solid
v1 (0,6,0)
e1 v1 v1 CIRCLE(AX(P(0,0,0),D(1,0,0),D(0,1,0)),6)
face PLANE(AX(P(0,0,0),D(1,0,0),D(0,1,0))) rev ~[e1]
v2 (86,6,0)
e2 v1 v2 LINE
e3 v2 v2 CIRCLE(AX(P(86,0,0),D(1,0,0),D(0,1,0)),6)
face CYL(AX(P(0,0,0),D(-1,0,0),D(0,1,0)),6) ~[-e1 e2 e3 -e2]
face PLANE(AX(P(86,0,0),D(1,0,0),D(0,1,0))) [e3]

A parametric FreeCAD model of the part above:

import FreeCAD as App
import Part
import Sketcher
from FreeCAD import Vector
Q = App.Units.Quantity

doc = App.newDocument("Part")
body = doc.addObject("PartDesign::Body", "Body")

# Sketch on YZ plane
sketch1 = body.newObject("Sketcher::SketchObject", "Sketch")
sketch1.AttachmentSupport = (doc.getObject("YZ_Plane"), [""])
sketch1.MapMode = "FlatFace"
sketch1.addGeometry(Part.Circle(Vector(0, 0, 0), Vector(0, 0, 1), 6), False)
sketch1.addConstraint(Sketcher.Constraint("Coincident", 0, 3, -1, 1))
sketch1.addConstraint(Sketcher.Constraint("Diameter", 0, Q("12 mm")))
pad1 = body.newObject("PartDesign::Pad", "Pad")
pad1.Profile = sketch1
pad1.Length = 86

doc.recompute()
